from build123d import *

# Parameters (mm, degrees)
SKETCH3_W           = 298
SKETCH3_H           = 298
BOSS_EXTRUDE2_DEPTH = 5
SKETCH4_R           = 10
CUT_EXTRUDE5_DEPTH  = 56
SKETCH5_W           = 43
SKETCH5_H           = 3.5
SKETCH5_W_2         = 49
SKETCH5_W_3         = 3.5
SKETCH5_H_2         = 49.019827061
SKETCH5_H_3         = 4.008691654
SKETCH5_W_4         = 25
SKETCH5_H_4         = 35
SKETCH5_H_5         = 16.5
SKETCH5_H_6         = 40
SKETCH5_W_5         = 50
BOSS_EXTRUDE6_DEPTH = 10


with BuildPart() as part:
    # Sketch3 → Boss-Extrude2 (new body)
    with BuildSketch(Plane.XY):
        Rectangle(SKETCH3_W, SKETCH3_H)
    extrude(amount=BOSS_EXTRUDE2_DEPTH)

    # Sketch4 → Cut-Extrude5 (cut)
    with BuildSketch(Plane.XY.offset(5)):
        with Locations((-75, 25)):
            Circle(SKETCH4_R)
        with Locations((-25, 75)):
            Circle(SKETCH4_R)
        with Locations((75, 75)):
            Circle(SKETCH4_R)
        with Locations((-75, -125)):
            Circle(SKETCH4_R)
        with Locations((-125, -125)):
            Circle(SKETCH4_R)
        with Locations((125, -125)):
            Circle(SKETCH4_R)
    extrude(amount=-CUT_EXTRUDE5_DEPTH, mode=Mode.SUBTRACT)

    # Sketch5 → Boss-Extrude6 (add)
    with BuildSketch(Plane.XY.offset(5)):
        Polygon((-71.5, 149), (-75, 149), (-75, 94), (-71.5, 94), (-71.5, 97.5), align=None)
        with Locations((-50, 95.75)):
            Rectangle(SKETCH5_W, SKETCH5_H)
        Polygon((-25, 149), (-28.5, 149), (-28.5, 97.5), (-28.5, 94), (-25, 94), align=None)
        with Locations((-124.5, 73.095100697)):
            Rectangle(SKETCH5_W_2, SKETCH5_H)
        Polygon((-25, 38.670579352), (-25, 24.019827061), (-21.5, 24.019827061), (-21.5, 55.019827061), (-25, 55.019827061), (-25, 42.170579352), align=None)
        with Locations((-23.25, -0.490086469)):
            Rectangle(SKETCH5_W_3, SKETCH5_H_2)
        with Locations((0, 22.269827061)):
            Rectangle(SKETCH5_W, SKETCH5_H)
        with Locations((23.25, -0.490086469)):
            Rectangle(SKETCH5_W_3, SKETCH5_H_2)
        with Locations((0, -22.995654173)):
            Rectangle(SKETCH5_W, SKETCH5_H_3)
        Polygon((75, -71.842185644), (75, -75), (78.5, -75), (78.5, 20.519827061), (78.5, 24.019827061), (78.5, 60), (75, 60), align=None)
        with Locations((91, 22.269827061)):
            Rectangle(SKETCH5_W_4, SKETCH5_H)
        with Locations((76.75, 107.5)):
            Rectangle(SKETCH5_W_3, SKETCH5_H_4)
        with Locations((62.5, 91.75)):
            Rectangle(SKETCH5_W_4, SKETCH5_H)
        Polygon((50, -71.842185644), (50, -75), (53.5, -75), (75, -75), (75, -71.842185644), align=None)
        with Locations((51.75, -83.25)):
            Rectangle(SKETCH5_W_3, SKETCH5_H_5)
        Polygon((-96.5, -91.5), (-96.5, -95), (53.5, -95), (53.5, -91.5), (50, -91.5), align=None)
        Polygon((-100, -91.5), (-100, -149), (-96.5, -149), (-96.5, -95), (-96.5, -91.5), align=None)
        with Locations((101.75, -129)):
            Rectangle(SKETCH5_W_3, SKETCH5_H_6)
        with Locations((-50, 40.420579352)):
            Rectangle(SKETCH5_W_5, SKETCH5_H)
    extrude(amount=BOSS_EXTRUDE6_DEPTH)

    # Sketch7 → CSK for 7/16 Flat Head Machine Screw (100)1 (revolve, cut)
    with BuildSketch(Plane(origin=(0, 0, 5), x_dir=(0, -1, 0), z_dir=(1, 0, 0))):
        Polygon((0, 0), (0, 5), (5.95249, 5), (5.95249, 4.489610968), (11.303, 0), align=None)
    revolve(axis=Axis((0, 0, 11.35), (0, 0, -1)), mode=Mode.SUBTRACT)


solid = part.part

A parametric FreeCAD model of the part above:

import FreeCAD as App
import Part
import Sketcher

V = App.Vector
Q = App.Units.Quantity


def add_polygon(sketch, points):
    """Adds a closed chain of lines whose ends are joined by coincident constraints."""
    first, n = sketch.GeometryCount, len(points)
    for a, b in zip(points, points[1:] + points[:1]):
        sketch.addGeometry(Part.LineSegment(App.Vector(*a, 0), App.Vector(*b, 0)), False)
    for i in range(n):
        sketch.addConstraint(Sketcher.Constraint("Coincident", first + i, 2, first + (i + 1) % n, 1))

doc = App.newDocument("Part")
body = doc.addObject("PartDesign::Body", "Body")

# Sketch on XY plane
sketch1 = body.newObject("Sketcher::SketchObject", "Sketch")
sketch1.AttachmentSupport = (doc.getObject("XY_Plane"), [""])
sketch1.MapMode = "FlatFace"
add_polygon(sketch1, [(-149, 149), (-149, -149), (149, -149), (149, 149)])  # lines 0-3
sketch1.addConstraint(Sketcher.Constraint("Vertical", 0))
sketch1.addConstraint(Sketcher.Constraint("Horizontal", 1))
sketch1.addConstraint(Sketcher.Constraint("Vertical", 2))
sketch1.addConstraint(Sketcher.Constraint("Horizontal", 3))
sketch1.addConstraint(Sketcher.Constraint("Symmetric", 0, 2, 2, 2, -1, 1))
sketch1.addConstraint(Sketcher.Constraint("Equal", 3, 0))
sketch1.addConstraint(Sketcher.Constraint("DistanceX", 1, 1, 1, 2, Q("298 mm")))
pad1 = body.newObject("PartDesign::Pad", "Pad")
pad1.Profile = sketch1
pad1.Length = 5

# Sketch on XY plane
sketch2 = body.newObject("Sketcher::SketchObject", "Sketch001")
sketch2.AttachmentSupport = (doc.getObject("XY_Plane"), [""])
sketch2.MapMode = "FlatFace"
sketch2.AttachmentOffset = App.Placement(V(0, 0, 5), App.Rotation())
sketch2.addGeometry(Part.Circle(V(-75, 25, 0), V(0, 0, 1), 10), False)
sketch2.addGeometry(Part.Circle(V(-25, 75, 0), V(0, 0, 1), 10), False)
sketch2.addGeometry(Part.Circle(V(75, 75, 0), V(0, 0, 1), 10), False)
sketch2.addGeometry(Part.Circle(V(-75, -125, 0), V(0, 0, 1), 10), False)
sketch2.addGeometry(Part.Circle(V(-125, -125, 0), V(0, 0, 1), 10), False)
sketch2.addGeometry(Part.Circle(V(125, -125, 0), V(0, 0, 1), 10), False)
sketch2.addConstraint(Sketcher.Constraint("Equal", 0, 1))
sketch2.addConstraint(Sketcher.Constraint("Equal", 1, 2))
sketch2.addConstraint(Sketcher.Constraint("Equal", 2, 3))
sketch2.addConstraint(Sketcher.Constraint("Equal", 3, 4))
sketch2.addConstraint(Sketcher.Constraint("Equal", 4, 5))
sketch2.addConstraint(Sketcher.Constraint("Symmetric", 4, 3, 5, 3, -2))
sketch2.addConstraint(Sketcher.Constraint("Horizontal", 1, 3, 2, 3))
sketch2.addConstraint(Sketcher.Constraint("Horizontal", 3, 3, 4, 3))
sketch2.addConstraint(Sketcher.Constraint("Vertical", 0, 3, 3, 3))
sketch2.addConstraint(Sketcher.Constraint("Diameter", 0, Q("20 mm")))
sketch2.addConstraint(Sketcher.Constraint("DistanceX", 0, 3, -1, 1, Q("75 mm")))
sketch2.addConstraint(Sketcher.Constraint("DistanceY", -1, 1, 0, 3, Q("25 mm")))
sketch2.addConstraint(Sketcher.Constraint("DistanceX", 1, 3, -1, 1, Q("25 mm")))
sketch2.addConstraint(Sketcher.Constraint("DistanceY", -1, 1, 1, 3, Q("75 mm")))
sketch2.addConstraint(Sketcher.Constraint("DistanceX", -1, 1, 2, 3, Q("75 mm")))
sketch2.addConstraint(Sketcher.Constraint("DistanceY", 3, 3, -1, 1, Q("125 mm")))
sketch2.addConstraint(Sketcher.Constraint("DistanceX", 4, 3, -1, 1, Q("125 mm")))
pocket1 = body.newObject("PartDesign::Pocket", "Pocket")
pocket1.Profile = sketch2
pocket1.Length = 56

# Sketch on XY plane
sketch3 = body.newObject("Sketcher::SketchObject", "Sketch002")
sketch3.AttachmentSupport = (doc.getObject("XY_Plane"), [""])
sketch3.MapMode = "FlatFace"
sketch3.AttachmentOffset = App.Placement(V(0, 0, 5), App.Rotation())
add_polygon(sketch3, [(-71.5, 149), (-75, 149), (-75, 94), (-25, 94), (-25, 149), (-28.5, 149), (-28.5, 97.5), (-71.5, 97.5)])  # lines 0-7
add_polygon(sketch3, [(-149, 74.845101), (-149, 71.345101), (-100, 71.345101), (-100, 74.845101)])  # lines 8-11
add_polygon(sketch3, [(-21.5, 55.019827), (-25, 55.019827), (-25, 42.170579), (-75, 42.170579), (-75, 38.670579), (-25, 38.670579), (-25, -25), (-21.5, -25), (21.5, -25), (25, -25), (25, 24.019827), (21.5, 24.019827), (-21.5, 24.019827)])  # lines 12-24
add_polygon(sketch3, [(-21.5, -20.991308), (-21.5, 20.519827), (21.5, 20.519827), (21.5, -20.991308)])  # lines 25-28
add_polygon(sketch3, [(78.5, -75), (78.5, 20.519827), (103.5, 20.519827), (103.5, 24.019827), (78.5, 24.019827), (78.5, 60), (75, 60), (75, -71.842186), (50, -71.842186), (50, -91.5), (-100, -91.5), (-100, -149), (-96.5, -149), (-96.5, -95), (53.5, -95), (53.5, -75)])  # lines 29-44
add_polygon(sketch3, [(75, 125), (75, 93.5), (50, 93.5), (50, 90), (78.5, 90), (78.5, 125)])  # lines 45-50
add_polygon(sketch3, [(100, -109), (100, -149), (103.5, -149), (103.5, -109)])  # lines 51-54
sketch3.addConstraint(Sketcher.Constraint("Horizontal", 0))
sketch3.addConstraint(Sketcher.Constraint("Vertical", 1))
sketch3.addConstraint(Sketcher.Constraint("Horizontal", 2))
sketch3.addConstraint(Sketcher.Constraint("Vertical", 3))
sketch3.addConstraint(Sketcher.Constraint("Horizontal", 4))
sketch3.addConstraint(Sketcher.Constraint("Vertical", 5))
sketch3.addConstraint(Sketcher.Constraint("Horizontal", 6))
sketch3.addConstraint(Sketcher.Constraint("Vertical", 7))
sketch3.addConstraint(Sketcher.Constraint("Vertical", 8))
sketch3.addConstraint(Sketcher.Constraint("Horizontal", 9))
sketch3.addConstraint(Sketcher.Constraint("Vertical", 10))
sketch3.addConstraint(Sketcher.Constraint("Horizontal", 11))
sketch3.addConstraint(Sketcher.Constraint("Horizontal", 12))
sketch3.addConstraint(Sketcher.Constraint("Vertical", 13))
sketch3.addConstraint(Sketcher.Constraint("Horizontal", 14))
sketch3.addConstraint(Sketcher.Constraint("Vertical", 15))
sketch3.addConstraint(Sketcher.Constraint("Horizontal", 16))
sketch3.addConstraint(Sketcher.Constraint("Vertical", 17))
sketch3.addConstraint(Sketcher.Constraint("Horizontal", 18))
sketch3.addConstraint(Sketcher.Constraint("Horizontal", 19))
sketch3.addConstraint(Sketcher.Constraint("Horizontal", 20))
sketch3.addConstraint(Sketcher.Constraint("Vertical", 21))
sketch3.addConstraint(Sketcher.Constraint("Horizontal", 22))
sketch3.addConstraint(Sketcher.Constraint("Horizontal", 23))
sketch3.addConstraint(Sketcher.Constraint("Vertical", 24))
sketch3.addConstraint(Sketcher.Constraint("Vertical", 25))
sketch3.addConstraint(Sketcher.Constraint("Horizontal", 26))
sketch3.addConstraint(Sketcher.Constraint("Vertical", 27))
sketch3.addConstraint(Sketcher.Constraint("Horizontal", 28))
sketch3.addConstraint(Sketcher.Constraint("Vertical", 29))
sketch3.addConstraint(Sketcher.Constraint("Horizontal", 30))
sketch3.addConstraint(Sketcher.Constraint("Vertical", 31))
sketch3.addConstraint(Sketcher.Constraint("Horizontal", 32))
sketch3.addConstraint(Sketcher.Constraint("Vertical", 33))
sketch3.addConstraint(Sketcher.Constraint("Horizontal", 34))
sketch3.addConstraint(Sketcher.Constraint("Vertical", 35))
sketch3.addConstraint(Sketcher.Constraint("Horizontal", 36))
sketch3.addConstraint(Sketcher.Constraint("Vertical", 37))
sketch3.addConstraint(Sketcher.Constraint("Horizontal", 38))
sketch3.addConstraint(Sketcher.Constraint("Vertical", 39))
sketch3.addConstraint(Sketcher.Constraint("Horizontal", 40))
sketch3.addConstraint(Sketcher.Constraint("Vertical", 41))
sketch3.addConstraint(Sketcher.Constraint("Horizontal", 42))
sketch3.addConstraint(Sketcher.Constraint("Vertical", 43))
sketch3.addConstraint(Sketcher.Constraint("Horizontal", 44))
sketch3.addConstraint(Sketcher.Constraint("Vertical", 45))
sketch3.addConstraint(Sketcher.Constraint("Horizontal", 46))
sketch3.addConstraint(Sketcher.Constraint("Vertical", 47))
sketch3.addConstraint(Sketcher.Constraint("Horizontal", 48))
sketch3.addConstraint(Sketcher.Constraint("Vertical", 49))
sketch3.addConstraint(Sketcher.Constraint("Horizontal", 50))
sketch3.addConstraint(Sketcher.Constraint("Vertical", 51))
sketch3.addConstraint(Sketcher.Constraint("Horizontal", 52))
sketch3.addConstraint(Sketcher.Constraint("Vertical", 53))
sketch3.addConstraint(Sketcher.Constraint("Horizontal", 54))
sketch3.addConstraint(Sketcher.Constraint("Symmetric", 39, 2, 51, 2, -2))
sketch3.addConstraint(Sketcher.Constraint("Horizontal", 0, 2, 3, 2))
sketch3.addConstraint(Sketcher.Constraint("Horizontal", 26, 2, 29, 2))
sketch3.addConstraint(Sketcher.Constraint("Horizontal", 23, 2, 31, 2))
sketch3.addConstraint(Sketcher.Constraint("Vertical", 3, 2, 12, 2))
sketch3.addConstraint(Sketcher.Constraint("Vertical", 1, 2, 14, 2))
sketch3.addConstraint(Sketcher.Constraint("Vertical", 13, 2, 16, 2))
sketch3.addConstraint(Sketcher.Constraint("Vertical", 19, 2, 22, 2))
sketch3.addConstraint(Sketcher.Constraint("Vertical", 18, 2, 23, 2))
sketch3.addConstraint(Sketcher.Constraint("Vertical", 24, 2, 25, 2))
sketch3.addConstraint(Sketcher.Constraint("Vertical", 22, 2, 26, 2))
sketch3.addConstraint(Sketcher.Constraint("Vertical", 29, 2, 32, 2))
sketch3.addConstraint(Sketcher.Constraint("Vertical", 10, 2, 38, 2))
sketch3.addConstraint(Sketcher.Constraint("Vertical", 35, 2, 45, 2))
sketch3.addConstraint(Sketcher.Constraint("Vertical", 37, 2, 46, 2))
sketch3.addConstraint(Sketcher.Constraint("Vertical", 44, 2, 48, 2))
sketch3.addConstraint(Sketcher.Constraint("Vertical", 31, 2, 52, 2))
sketch3.addConstraint(Sketcher.Constraint("Equal", 0, 4))
sketch3.addConstraint(Sketcher.Constraint("Equal", 4, 12))
sketch3.addConstraint(Sketcher.Constraint("Equal", 6, 19))
sketch3.addConstraint(Sketcher.Constraint("Equal", 18, 20))
sketch3.addConstraint(Sketcher.Constraint("Equal", 22, 34))
sketch3.addConstraint(Sketcher.Constraint("Equal", 32, 36))
sketch3.addConstraint(Sketcher.Constraint("Equal", 34, 40))
sketch3.addConstraint(Sketcher.Constraint("Equal", 38, 42))
sketch3.addConstraint(Sketcher.Constraint("Equal", 50, 52))
sketch3.addConstraint(Sketcher.Constraint("Equal", 54, 8))
sketch3.addConstraint(Sketcher.Constraint("Equal", 10, 15))
sketch3.addConstraint(Sketcher.Constraint("Equal", 15, 31))
sketch3.addConstraint(Sketcher.Constraint("Equal", 31, 47))
sketch3.addConstraint(Sketcher.Constraint("DistanceX", 2, 1, 2, 2, Q("50 mm")))
sketch3.addConstraint(Sketcher.Constraint("DistanceX", 6, 2, 6, 1, Q("43 mm")))
sketch3.addConstraint(Sketcher.Constraint("DistanceX", 9, 1, 9, 2, Q("49 mm")))
sketch3.addConstraint(Sketcher.Constraint("DistanceX", 30, 1, 30, 2, Q("25 mm")))
sketch3.addConstraint(Sketcher.Constraint("DistanceX", 38, 2, 38, 1, Q("150 mm")))
sketch3.addConstraint(Sketcher.Constraint("DistanceY", 1, 2, 1, 1, Q("55 mm")))
sketch3.addConstraint(Sketcher.Constraint("DistanceY", 24, 1, 24, 2, Q("31 mm")))
sketch3.addConstraint(Sketcher.Constraint("DistanceY", 41, 1, 41, 2, Q("54 mm")))
sketch3.addConstraint(Sketcher.Constraint("DistanceY", 43, 1, 43, 2, Q("20 mm")))
sketch3.addConstraint(Sketcher.Constraint("DistanceY", 49, 1, 49, 2, Q("35 mm")))
sketch3.addConstraint(Sketcher.Constraint("DistanceY", 51, 2, 51, 1, Q("40 mm")))
sketch3.addConstraint(Sketcher.Constraint("DistanceY", 5, 2, 5, 1, Q("51.5 mm")))
sketch3.addConstraint(Sketcher.Constraint("DistanceY", 39, 2, 39, 1, Q("57.5 mm")))
sketch3.addConstraint(Sketcher.Constraint("DistanceX", 0, 2, -1, 1, Q("75 mm")))
sketch3.addConstraint(Sketcher.Constraint("DistanceY", -1, 1, 0, 2, Q("149 mm")))
sketch3.addConstraint(Sketcher.Constraint("DistanceY", 17, 2, -1, 1, Q("25 mm")))
sketch3.addConstraint(Sketcher.Constraint("DistanceY", -1, 1, 33, 2, Q("60 mm")))
sketch3.addConstraint(Sketcher.Constraint("DistanceY", 39, 2, -1, 1, Q("149 mm")))
sketch3.addConstraint(Sketcher.Constraint("DistanceY", -1, 1, 47, 2, Q("90 mm")))
sketch3.addConstraint(Sketcher.Constraint("DistanceY", 17, 2, 17, 1, Q("63.670579 mm")))
sketch3.addConstraint(Sketcher.Constraint("DistanceY", -1, 1, 8, 2, Q("71.345101 mm")))
sketch3.addConstraint(Sketcher.Constraint("DistanceY", 13, 2, 13, 1, Q("12.849248 mm")))
sketch3.addConstraint(Sketcher.Constraint("DistanceY", 25, 1, 25, 2, Q("41.511135 mm")))
sketch3.addConstraint(Sketcher.Constraint("DistanceY", 35, 2, 35, 1, Q("131.842186 mm")))
pad2 = body.newObject("PartDesign::Pad", "Pad001")
pad2.Profile = sketch3
pad2.Length = 10

# Sketch on YZ plane
sketch4 = body.newObject("Sketcher::SketchObject", "Sketch003")
sketch4.AttachmentSupport = (doc.getObject("YZ_Plane"), [""])
sketch4.MapMode = "FlatFace"
add_polygon(sketch4, [(0, 0), (0, 5), (-11.303, 5), (-5.95249, 0.510389), (-5.95249, 0)])  # lines 0-4
sketch4.addConstraint(Sketcher.Constraint("Vertical", 0))
sketch4.addConstraint(Sketcher.Constraint("Horizontal", 1))
sketch4.addConstraint(Sketcher.Constraint("Vertical", 3))
sketch4.addConstraint(Sketcher.Constraint("Horizontal", 4))
sketch4.addConstraint(Sketcher.Constraint("Coincident", 4, 2, -1, 1))
sketch4.addConstraint(Sketcher.Constraint("DistanceY", 0, 1, 0, 2, Q("5 mm")))
sketch4.addConstraint(Sketcher.Constraint("Angle", 2, Q("-40 deg")))
sketch4.addConstraint(Sketcher.Constraint("DistanceX", 1, 2, 1, 1, Q("11.303 mm")))
sketch4.addConstraint(Sketcher.Constraint("DistanceX", 4, 1, 4, 2, Q("5.95249 mm")))
groove = body.newObject("PartDesign::Groove", "Groove")
groove.Profile = sketch4
groove.ReferenceAxis = (sketch4, ["V_Axis"])
groove.Angle = 360

doc.recompute()
